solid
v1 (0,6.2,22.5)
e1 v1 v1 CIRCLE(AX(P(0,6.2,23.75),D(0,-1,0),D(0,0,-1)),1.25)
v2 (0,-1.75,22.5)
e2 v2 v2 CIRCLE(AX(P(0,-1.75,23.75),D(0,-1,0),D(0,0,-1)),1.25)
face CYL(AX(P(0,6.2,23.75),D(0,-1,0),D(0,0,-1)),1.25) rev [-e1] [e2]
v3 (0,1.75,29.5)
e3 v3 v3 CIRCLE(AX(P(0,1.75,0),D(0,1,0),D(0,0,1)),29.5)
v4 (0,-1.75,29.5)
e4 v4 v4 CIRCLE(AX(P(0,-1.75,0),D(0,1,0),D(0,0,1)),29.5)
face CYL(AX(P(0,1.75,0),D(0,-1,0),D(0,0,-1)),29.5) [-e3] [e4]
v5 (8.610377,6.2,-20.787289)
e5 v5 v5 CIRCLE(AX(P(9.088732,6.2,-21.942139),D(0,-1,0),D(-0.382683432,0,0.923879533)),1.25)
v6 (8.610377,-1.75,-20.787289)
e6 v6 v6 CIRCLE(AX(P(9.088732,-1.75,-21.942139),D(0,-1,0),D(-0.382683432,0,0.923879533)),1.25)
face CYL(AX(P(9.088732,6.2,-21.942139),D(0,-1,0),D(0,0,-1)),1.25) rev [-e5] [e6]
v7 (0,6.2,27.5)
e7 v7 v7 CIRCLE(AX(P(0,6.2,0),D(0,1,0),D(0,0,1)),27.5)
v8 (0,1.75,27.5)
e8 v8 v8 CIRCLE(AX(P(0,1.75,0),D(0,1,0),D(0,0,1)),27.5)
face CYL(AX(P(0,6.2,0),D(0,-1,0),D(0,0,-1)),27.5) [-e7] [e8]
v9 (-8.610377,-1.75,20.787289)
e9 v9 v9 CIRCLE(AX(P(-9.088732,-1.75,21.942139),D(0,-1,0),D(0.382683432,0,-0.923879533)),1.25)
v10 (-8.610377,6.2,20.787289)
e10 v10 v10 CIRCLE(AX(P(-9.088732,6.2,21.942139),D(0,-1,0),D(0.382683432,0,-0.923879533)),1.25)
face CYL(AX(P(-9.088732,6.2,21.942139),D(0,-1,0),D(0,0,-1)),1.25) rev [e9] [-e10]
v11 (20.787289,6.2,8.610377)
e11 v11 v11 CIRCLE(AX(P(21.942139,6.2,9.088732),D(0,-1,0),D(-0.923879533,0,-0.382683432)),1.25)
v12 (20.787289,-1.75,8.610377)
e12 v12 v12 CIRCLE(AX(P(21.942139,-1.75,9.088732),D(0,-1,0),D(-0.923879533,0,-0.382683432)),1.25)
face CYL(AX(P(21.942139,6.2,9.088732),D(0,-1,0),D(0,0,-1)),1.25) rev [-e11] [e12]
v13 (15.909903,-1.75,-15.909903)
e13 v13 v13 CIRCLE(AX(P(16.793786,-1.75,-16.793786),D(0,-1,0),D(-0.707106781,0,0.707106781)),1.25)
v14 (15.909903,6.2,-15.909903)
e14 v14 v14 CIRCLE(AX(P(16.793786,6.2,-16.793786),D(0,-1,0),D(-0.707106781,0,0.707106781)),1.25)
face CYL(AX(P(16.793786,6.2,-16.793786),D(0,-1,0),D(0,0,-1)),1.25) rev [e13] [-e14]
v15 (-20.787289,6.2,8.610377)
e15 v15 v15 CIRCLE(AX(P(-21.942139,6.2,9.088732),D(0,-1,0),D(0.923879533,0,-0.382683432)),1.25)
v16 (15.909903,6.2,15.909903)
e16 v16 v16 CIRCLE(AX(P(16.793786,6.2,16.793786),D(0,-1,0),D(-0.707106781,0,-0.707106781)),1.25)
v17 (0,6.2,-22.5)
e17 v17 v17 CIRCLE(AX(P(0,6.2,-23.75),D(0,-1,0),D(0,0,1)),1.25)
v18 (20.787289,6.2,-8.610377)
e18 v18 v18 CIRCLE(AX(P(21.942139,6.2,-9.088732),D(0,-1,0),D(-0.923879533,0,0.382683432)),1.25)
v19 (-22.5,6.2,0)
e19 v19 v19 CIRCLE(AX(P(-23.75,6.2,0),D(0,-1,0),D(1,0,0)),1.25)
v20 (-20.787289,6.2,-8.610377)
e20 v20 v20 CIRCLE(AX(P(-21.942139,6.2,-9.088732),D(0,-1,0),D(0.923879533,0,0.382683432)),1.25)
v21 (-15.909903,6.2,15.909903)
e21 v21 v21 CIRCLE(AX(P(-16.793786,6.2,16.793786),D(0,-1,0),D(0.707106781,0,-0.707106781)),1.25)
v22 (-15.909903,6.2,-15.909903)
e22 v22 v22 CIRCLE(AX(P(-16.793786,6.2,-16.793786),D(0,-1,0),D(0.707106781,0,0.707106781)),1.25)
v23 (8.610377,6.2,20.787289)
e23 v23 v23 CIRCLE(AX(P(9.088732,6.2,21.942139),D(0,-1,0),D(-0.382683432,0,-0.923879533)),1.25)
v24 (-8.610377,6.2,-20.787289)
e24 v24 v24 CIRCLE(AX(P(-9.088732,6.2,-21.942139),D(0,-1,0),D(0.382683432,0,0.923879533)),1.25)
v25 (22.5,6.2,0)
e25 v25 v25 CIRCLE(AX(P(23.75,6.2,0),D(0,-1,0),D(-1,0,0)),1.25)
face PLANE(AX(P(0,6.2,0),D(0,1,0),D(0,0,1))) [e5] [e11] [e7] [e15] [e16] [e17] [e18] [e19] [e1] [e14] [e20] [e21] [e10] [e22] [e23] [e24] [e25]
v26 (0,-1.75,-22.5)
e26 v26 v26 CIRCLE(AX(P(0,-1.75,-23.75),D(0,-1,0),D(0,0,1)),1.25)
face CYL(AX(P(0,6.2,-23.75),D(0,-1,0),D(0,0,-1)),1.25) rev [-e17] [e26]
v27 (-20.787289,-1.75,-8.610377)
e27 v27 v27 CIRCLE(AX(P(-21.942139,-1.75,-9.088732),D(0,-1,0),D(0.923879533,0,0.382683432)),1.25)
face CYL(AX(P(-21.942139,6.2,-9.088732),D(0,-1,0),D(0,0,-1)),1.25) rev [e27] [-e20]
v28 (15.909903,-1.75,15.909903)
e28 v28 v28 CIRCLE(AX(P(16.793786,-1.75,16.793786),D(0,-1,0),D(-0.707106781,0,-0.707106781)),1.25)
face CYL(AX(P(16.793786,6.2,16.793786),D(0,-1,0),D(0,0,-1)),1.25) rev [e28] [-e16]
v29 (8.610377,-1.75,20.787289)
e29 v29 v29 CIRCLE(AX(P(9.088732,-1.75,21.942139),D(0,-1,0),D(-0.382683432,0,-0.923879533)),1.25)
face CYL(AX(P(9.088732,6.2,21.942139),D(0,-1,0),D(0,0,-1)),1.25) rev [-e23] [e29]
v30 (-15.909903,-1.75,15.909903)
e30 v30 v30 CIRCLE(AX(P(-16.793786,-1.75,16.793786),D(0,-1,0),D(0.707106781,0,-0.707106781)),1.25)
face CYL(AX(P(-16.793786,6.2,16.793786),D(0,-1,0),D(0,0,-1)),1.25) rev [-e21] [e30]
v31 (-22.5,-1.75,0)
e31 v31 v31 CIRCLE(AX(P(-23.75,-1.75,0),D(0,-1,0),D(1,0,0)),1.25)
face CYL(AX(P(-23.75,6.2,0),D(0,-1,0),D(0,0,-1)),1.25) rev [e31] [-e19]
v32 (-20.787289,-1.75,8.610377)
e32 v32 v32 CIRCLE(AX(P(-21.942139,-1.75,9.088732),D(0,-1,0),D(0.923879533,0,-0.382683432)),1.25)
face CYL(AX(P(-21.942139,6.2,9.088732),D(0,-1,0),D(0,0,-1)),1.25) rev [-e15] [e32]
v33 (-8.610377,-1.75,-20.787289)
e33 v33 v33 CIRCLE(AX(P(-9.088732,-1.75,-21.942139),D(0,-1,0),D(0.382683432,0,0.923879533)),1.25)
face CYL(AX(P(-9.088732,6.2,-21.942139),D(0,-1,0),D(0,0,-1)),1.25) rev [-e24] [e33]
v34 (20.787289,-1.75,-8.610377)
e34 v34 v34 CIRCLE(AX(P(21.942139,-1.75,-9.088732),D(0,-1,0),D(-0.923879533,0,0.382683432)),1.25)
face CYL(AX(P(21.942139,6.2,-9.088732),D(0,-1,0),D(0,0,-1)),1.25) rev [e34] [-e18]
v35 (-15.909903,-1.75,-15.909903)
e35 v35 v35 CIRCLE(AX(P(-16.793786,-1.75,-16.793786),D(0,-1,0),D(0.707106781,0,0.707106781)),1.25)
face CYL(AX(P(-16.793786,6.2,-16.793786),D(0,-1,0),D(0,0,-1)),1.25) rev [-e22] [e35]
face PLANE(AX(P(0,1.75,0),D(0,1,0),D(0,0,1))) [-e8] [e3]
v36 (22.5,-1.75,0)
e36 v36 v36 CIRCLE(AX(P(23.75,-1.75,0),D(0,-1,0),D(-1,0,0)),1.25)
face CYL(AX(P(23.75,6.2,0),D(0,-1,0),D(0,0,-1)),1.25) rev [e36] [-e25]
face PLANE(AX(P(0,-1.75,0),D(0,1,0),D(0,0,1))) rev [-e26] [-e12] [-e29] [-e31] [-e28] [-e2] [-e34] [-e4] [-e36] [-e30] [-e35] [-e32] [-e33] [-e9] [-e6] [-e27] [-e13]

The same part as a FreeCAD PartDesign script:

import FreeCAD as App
import Part
import Sketcher
from FreeCAD import Vector
Q = App.Units.Quantity

doc = App.newDocument("Part")
body = doc.addObject("PartDesign::Body", "Body")

# Sketch on XZ plane
sketch1 = body.newObject("Sketcher::SketchObject", "Sketch")
sketch1.AttachmentSupport = (doc.getObject("XZ_Plane"), [""])
sketch1.MapMode = "FlatFace"
sketch1.addGeometry(Part.Circle(Vector(0, 0, 0), Vector(0, 0, 1), 30), False)
sketch1.addConstraint([
    Sketcher.Constraint("Coincident", 0, 3, -1, 1),
    Sketcher.Constraint("Diameter", 0, Q("59 mm")),
])
pad1 = body.newObject("PartDesign::Pad", "Pad")
pad1.Profile = sketch1
pad1.Length = 3.5
pad1.Midplane = True

# Sketch on XZ plane
sketch2 = body.newObject("Sketcher::SketchObject", "Sketch001")
sketch2.AttachmentSupport = (doc.getObject("XZ_Plane"), [""])
sketch2.MapMode = "FlatFace"
sketch2.AttachmentOffset = App.Placement(Vector(0, 0, -1.75), App.Rotation())
sketch2.addGeometry(Part.Circle(Vector(0, 0, 0), Vector(0, 0, 1), 28), False)
sketch2.addConstraint([
    Sketcher.Constraint("Coincident", 0, 3, -1, 1),
    Sketcher.Constraint("Diameter", 0, Q("55 mm")),
])
pad2 = body.newObject("PartDesign::Pad", "Pad001")
pad2.Profile = sketch2
pad2.Length = 4.45
pad2.Reversed = True

# Sketch on XZ plane
sketch3 = body.newObject("Sketcher::SketchObject", "Sketch002")
sketch3.AttachmentSupport = (doc.getObject("XZ_Plane"), [""])
sketch3.MapMode = "FlatFace"
sketch3.AttachmentOffset = App.Placement(Vector(0, 0, 1.75), App.Rotation())
sketch3.addGeometry(Part.Circle(Vector(0, 23.8, 0), Vector(0, 0, 1), 1.2), False)
sketch3.addConstraint([
    Sketcher.Constraint("PointOnObject", 0, 3, -2),
    Sketcher.Constraint("Diameter", 0, Q("2.5 mm")),
    Sketcher.Constraint("DistanceY", -1, 1, 0, 3, Q("23.75 mm")),
])
pocket1 = body.newObject("PartDesign::Pocket", "Pocket")
pocket1.Profile = sketch3
pocket1.Type = "ThroughAll"
doc.recompute()

polarpattern = body.newObject("PartDesign::PolarPattern", "PolarPattern")
polarpattern.Originals = [pocket1]
polarpattern.Axis = (doc.getObject("Y_Axis"), [""])
polarpattern.Angle = 360
polarpattern.Occurrences = 16
body.Tip = polarpattern

doc.recompute()
